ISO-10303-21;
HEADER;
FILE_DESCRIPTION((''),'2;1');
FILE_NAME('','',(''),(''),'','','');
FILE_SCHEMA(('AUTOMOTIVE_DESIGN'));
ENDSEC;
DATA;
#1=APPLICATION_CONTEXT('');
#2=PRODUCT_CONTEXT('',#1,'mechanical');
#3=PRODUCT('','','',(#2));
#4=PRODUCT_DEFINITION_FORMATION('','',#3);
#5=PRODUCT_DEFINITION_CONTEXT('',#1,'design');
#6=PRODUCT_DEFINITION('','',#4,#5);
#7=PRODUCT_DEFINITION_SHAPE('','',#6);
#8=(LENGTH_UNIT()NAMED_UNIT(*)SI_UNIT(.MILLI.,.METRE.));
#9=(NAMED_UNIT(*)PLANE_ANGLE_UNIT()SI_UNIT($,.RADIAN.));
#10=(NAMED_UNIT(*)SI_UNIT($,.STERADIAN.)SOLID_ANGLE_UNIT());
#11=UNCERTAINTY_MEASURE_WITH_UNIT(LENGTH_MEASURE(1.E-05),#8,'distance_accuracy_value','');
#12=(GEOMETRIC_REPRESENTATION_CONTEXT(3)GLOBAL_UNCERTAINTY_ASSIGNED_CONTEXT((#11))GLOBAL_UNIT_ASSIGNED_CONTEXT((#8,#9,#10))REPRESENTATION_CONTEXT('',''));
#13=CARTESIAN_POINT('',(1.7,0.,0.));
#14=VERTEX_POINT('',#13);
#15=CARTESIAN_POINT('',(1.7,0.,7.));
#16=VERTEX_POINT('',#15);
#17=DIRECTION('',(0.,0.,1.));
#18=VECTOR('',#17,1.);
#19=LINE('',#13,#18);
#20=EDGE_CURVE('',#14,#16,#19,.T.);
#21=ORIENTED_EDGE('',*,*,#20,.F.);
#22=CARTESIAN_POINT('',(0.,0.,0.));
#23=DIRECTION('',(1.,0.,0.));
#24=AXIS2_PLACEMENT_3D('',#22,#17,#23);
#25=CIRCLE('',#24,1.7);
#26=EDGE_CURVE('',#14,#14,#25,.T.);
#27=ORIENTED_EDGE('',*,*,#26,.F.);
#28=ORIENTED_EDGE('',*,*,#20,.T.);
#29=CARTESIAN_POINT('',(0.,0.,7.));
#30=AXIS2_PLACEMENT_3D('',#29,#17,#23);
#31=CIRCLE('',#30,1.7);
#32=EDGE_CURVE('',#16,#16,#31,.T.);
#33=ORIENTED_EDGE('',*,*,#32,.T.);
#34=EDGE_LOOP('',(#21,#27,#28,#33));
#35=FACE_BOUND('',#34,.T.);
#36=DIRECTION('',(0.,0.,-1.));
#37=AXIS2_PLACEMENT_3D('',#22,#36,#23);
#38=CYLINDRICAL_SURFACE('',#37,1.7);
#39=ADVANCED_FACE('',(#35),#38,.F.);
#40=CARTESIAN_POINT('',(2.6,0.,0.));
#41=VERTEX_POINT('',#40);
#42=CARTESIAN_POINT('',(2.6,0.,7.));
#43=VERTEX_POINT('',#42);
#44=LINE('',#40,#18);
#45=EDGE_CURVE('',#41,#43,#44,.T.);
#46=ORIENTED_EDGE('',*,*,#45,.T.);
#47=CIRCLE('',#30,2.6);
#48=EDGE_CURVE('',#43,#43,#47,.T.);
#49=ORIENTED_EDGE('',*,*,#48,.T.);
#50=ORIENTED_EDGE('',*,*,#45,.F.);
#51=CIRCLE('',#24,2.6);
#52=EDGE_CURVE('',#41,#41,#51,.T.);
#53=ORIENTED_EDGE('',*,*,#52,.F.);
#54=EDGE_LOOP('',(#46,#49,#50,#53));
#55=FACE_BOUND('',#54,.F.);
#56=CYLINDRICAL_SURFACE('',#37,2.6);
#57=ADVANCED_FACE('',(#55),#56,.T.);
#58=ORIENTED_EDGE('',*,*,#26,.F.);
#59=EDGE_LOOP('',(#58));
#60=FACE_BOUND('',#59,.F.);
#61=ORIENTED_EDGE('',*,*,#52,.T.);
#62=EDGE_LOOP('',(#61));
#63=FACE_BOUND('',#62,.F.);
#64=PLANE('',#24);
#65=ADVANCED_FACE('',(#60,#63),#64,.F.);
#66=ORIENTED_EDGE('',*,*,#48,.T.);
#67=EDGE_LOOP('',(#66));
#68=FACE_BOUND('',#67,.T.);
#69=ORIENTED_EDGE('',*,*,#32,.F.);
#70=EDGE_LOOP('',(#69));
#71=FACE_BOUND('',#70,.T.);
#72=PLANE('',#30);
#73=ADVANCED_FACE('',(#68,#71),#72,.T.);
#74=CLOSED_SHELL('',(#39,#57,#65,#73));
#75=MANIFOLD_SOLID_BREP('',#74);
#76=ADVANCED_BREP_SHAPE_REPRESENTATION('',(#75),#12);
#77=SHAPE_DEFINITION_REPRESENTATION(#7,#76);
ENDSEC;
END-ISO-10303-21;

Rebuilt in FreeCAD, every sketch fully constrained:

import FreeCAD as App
import Part
import Sketcher
Q = App.Units.Quantity

doc = App.newDocument("Part")
params = doc.addObject("Spreadsheet::Sheet", "Params")
for row, (alias, value) in enumerate([
    ("sketch1_diameter", "5.2 mm"),
    ("sketch1_diameter2", "3.4 mm"),
    ("pad1_length", "7 mm"),
], start=1):
    params.set(f"A{row}", alias)
    params.set(f"B{row}", "=" + value)
    params.setAlias(f"B{row}", alias)

body = doc.addObject("PartDesign::Body", "Body")

# Sketch on XY plane
sketch1 = doc.addObject("Sketcher::SketchObject", "Sketch")
body.addObject(sketch1)
sketch1.AttachmentSupport = (doc.XY_Plane, [""])
sketch1.MapMode = "FlatFace"
sketch1.addGeometry([
    Part.Circle(App.Vector(0, 0, 0), App.Vector(0, 0, 1), 2.6),
    Part.Circle(App.Vector(0, 0, 0), App.Vector(0, 0, 1), 1.7),
], False)
sketch1.addConstraint([
    Sketcher.Constraint("Coincident", 0, 3, -1, 1),
    Sketcher.Constraint("Coincident", 1, 3, -1, 1),
    Sketcher.Constraint("Diameter", 0, Q("5.2 mm")),
    Sketcher.Constraint("Diameter", 1, Q("3.4 mm")),
])
sketch1.setExpression("Constraints[2]", "Params.sketch1_diameter")
sketch1.setExpression("Constraints[3]", "Params.sketch1_diameter2")
pad1 = doc.addObject("PartDesign::Pad", "Pad")
body.addObject(pad1)
pad1.Profile = sketch1
pad1.setExpression("Length", "Params.pad1_length")

doc.recompute()
